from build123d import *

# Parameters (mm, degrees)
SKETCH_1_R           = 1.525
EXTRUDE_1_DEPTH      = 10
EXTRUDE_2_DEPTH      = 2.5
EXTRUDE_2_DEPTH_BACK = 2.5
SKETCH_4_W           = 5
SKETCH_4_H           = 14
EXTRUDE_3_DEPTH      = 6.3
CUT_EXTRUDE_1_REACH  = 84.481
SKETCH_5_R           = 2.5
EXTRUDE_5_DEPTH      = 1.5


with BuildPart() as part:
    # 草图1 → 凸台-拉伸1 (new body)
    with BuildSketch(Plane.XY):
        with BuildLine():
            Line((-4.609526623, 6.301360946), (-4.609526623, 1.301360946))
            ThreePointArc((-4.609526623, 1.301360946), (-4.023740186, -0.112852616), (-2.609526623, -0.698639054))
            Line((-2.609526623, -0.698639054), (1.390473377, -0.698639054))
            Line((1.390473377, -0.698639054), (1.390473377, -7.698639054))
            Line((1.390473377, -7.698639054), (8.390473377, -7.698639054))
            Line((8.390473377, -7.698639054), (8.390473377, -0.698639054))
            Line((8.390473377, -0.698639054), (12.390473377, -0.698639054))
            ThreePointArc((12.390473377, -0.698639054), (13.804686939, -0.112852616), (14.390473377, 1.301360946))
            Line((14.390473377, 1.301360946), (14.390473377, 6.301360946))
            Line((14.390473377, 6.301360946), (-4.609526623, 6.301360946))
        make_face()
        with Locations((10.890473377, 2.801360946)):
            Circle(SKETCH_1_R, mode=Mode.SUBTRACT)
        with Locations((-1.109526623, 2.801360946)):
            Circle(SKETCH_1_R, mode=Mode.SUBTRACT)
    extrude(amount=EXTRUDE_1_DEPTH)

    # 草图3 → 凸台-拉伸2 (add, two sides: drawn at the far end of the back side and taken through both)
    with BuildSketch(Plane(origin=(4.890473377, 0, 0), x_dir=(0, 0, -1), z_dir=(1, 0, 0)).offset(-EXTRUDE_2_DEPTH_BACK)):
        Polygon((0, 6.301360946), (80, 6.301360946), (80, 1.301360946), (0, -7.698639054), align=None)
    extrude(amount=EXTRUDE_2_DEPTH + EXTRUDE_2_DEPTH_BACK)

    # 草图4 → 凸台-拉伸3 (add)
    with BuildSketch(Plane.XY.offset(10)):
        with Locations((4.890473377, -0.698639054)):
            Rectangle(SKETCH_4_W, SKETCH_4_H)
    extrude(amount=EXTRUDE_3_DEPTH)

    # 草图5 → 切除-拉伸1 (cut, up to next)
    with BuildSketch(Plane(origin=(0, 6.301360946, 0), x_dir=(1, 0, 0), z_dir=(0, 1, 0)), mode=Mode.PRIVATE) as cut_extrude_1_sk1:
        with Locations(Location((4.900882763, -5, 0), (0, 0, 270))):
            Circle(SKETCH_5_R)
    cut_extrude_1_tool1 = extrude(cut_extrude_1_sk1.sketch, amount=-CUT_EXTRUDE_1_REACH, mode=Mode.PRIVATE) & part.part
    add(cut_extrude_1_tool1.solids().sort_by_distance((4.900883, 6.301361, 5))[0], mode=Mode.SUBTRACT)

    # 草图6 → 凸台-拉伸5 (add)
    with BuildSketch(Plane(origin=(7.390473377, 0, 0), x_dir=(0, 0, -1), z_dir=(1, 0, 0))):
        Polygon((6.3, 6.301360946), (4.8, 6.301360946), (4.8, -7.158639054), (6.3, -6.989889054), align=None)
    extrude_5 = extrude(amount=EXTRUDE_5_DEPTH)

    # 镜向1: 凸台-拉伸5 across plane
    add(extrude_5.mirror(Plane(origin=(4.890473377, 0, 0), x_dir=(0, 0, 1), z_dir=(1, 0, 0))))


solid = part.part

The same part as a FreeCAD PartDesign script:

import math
import FreeCAD as App
import Part
import Sketcher

V = App.Vector


def add_polygon(sketch, points):
    """Adds a closed chain of lines whose ends are joined by coincident constraints."""
    first, n = sketch.GeometryCount, len(points)
    for a, b in zip(points, points[1:] + points[:1]):
        sketch.addGeometry(Part.LineSegment(App.Vector(*a, 0), App.Vector(*b, 0)), False)
    for i in range(n):
        sketch.addConstraint(Sketcher.Constraint("Coincident", first + i, 2, first + (i + 1) % n, 1))

doc = App.newDocument("Part")
body = doc.addObject("PartDesign::Body", "Body")

sketch1 = body.newObject("Sketcher::SketchObject", "Sketch")
sketch1.AttachmentSupport = (doc.getObject("XY_Plane"), [""])
sketch1.MapMode = "FlatFace"
sketch1.addGeometry(Part.LineSegment(V(-4.6, 6.3, 0), V(-4.6, 1.3, 0)), False)
sketch1.addGeometry(Part.ArcOfCircle(Part.Circle(V(-2.6, 1.3, 0), V(0, 0, 1), 2), math.radians(180), math.radians(270)), False)
sketch1.addGeometry(Part.LineSegment(V(-2.6, -0.7, 0), V(1.4, -0.7, 0)), False)
sketch1.addGeometry(Part.LineSegment(V(1.4, -0.7, 0), V(1.4, -7.7, 0)), False)
sketch1.addGeometry(Part.LineSegment(V(1.4, -7.7, 0), V(8.4, -7.7, 0)), False)
sketch1.addGeometry(Part.LineSegment(V(8.4, -7.7, 0), V(8.4, -0.7, 0)), False)
sketch1.addGeometry(Part.LineSegment(V(8.4, -0.7, 0), V(12.4, -0.7, 0)), False)
sketch1.addGeometry(Part.ArcOfCircle(Part.Circle(V(12.4, 1.3, 0), V(0, 0, 1), 2), math.radians(-90), math.radians(0)), False)
sketch1.addGeometry(Part.LineSegment(V(14.4, 1.3, 0), V(14.4, 6.3, 0)), False)
sketch1.addGeometry(Part.LineSegment(V(14.4, 6.3, 0), V(-4.6, 6.3, 0)), False)
sketch1.addGeometry(Part.Circle(V(-1.1, 2.8, 0), V(0, 0, 1), 1.5), False)
sketch1.addGeometry(Part.Circle(V(10.9, 2.8, 0), V(0, 0, 1), 1.5), False)
sketch1.addConstraint(Sketcher.Constraint("Tangent", 0, 2, 1, 1))
sketch1.addConstraint(Sketcher.Constraint("Tangent", 1, 2, 2, 1))
sketch1.addConstraint(Sketcher.Constraint("Coincident", 2, 2, 3, 1))
sketch1.addConstraint(Sketcher.Constraint("Coincident", 3, 2, 4, 1))
sketch1.addConstraint(Sketcher.Constraint("Coincident", 4, 2, 5, 1))
sketch1.addConstraint(Sketcher.Constraint("Coincident", 5, 2, 6, 1))
sketch1.addConstraint(Sketcher.Constraint("Tangent", 6, 2, 7, 1))
sketch1.addConstraint(Sketcher.Constraint("Tangent", 7, 2, 8, 1))
sketch1.addConstraint(Sketcher.Constraint("Coincident", 8, 2, 9, 1))
sketch1.addConstraint(Sketcher.Constraint("Coincident", 9, 2, 0, 1))
sketch1.addConstraint(Sketcher.Constraint("Vertical", 0))
sketch1.addConstraint(Sketcher.Constraint("Horizontal", 2))
sketch1.addConstraint(Sketcher.Constraint("Vertical", 3))
sketch1.addConstraint(Sketcher.Constraint("Horizontal", 4))
sketch1.addConstraint(Sketcher.Constraint("Vertical", 5))
sketch1.addConstraint(Sketcher.Constraint("Horizontal", 6))
sketch1.addConstraint(Sketcher.Constraint("Vertical", 8))
sketch1.addConstraint(Sketcher.Constraint("Horizontal", 9))
sketch1.addConstraint(Sketcher.Constraint("Equal", 1, 7))
sketch1.addConstraint(Sketcher.Constraint("Equal", 10, 11))
sketch1.addConstraint(Sketcher.Constraint("Horizontal", 1, 3, 7, 3))
sketch1.addConstraint(Sketcher.Constraint("Horizontal", 10, 3, 11, 3))
sketch1.addConstraint(Sketcher.Constraint("Equal", 2, 6))
sketch1.addConstraint(Sketcher.Constraint("Equal", 4, 3))
sketch1.addConstraint(Sketcher.Constraint("Radius", 1, 2.0))
sketch1.addConstraint(Sketcher.Constraint("Diameter", 10, 3.05))
sketch1.addConstraint(Sketcher.Constraint("DistanceX", 2, 1, 2, 2, 4.0))
sketch1.addConstraint(Sketcher.Constraint("DistanceX", 4, 1, 4, 2, 7.0))
sketch1.addConstraint(Sketcher.Constraint("DistanceY", 0, 2, 0, 1, 5.0))
sketch1.addConstraint(Sketcher.Constraint("DistanceX", 10, 3, 11, 3, 12.0))
sketch1.addConstraint(Sketcher.Constraint("DistanceX", 1, 3, 10, 3, 1.5))
sketch1.addConstraint(Sketcher.Constraint("DistanceY", 1, 3, 10, 3, 1.5))
sketch1.addConstraint(Sketcher.Constraint("DistanceY", -1, 1, 1, 3, 1.301361))
sketch1.addConstraint(Sketcher.Constraint("DistanceX", 1, 3, -1, 1, 2.609527))
pad1 = body.newObject("PartDesign::Pad", "Pad")
pad1.Profile = sketch1
pad1.Length = 10

sketch2 = body.newObject("Sketcher::SketchObject", "Sketch001")
sketch2.AttachmentSupport = (doc.getObject("YZ_Plane"), [""])
sketch2.MapMode = "FlatFace"
sketch2.AttachmentOffset = App.Placement(V(0, 0, 4.890473), App.Rotation())
add_polygon(sketch2, [(6, -80), (6, 0), (-8, 0), (1, -80)])
sketch2.addConstraint(Sketcher.Constraint("Vertical", 0))
sketch2.addConstraint(Sketcher.Constraint("Horizontal", 1))
sketch2.addConstraint(Sketcher.Constraint("Horizontal", 3))
sketch2.addConstraint(Sketcher.Constraint("PointOnObject", 0, 2, -1))
sketch2.addConstraint(Sketcher.Constraint("DistanceX", 1, 2, 1, 1, 14.0))
sketch2.addConstraint(Sketcher.Constraint("DistanceX", 3, 1, 3, 2, 5.0))
sketch2.addConstraint(Sketcher.Constraint("DistanceY", 0, 1, 0, 2, 80.0))
sketch2.addConstraint(Sketcher.Constraint("DistanceX", -1, 1, 0, 2, 6.301361))
pad2 = body.newObject("PartDesign::Pad", "Pad001")
pad2.Profile = sketch2
pad2.Type = "TwoLengths"
pad2.Length = 2.5
pad2.Length2 = 2.5

sketch3 = body.newObject("Sketcher::SketchObject", "Sketch002")
sketch3.AttachmentSupport = (doc.getObject("XY_Plane"), [""])
sketch3.MapMode = "FlatFace"
sketch3.AttachmentOffset = App.Placement(V(0, 0, 10), App.Rotation())
add_polygon(sketch3, [(2, 6), (2, -8), (7, -8), (7, 6)])
sketch3.addConstraint(Sketcher.Constraint("Vertical", 0))
sketch3.addConstraint(Sketcher.Constraint("Horizontal", 1))
sketch3.addConstraint(Sketcher.Constraint("Vertical", 2))
sketch3.addConstraint(Sketcher.Constraint("Horizontal", 3))
sketch3.addConstraint(Sketcher.Constraint("DistanceX", 1, 1, 1, 2, 5.0))
sketch3.addConstraint(Sketcher.Constraint("DistanceY", 0, 2, 0, 1, 14.0))
sketch3.addConstraint(Sketcher.Constraint("DistanceY", 0, 2, -1, 1, 7.698639))
sketch3.addConstraint(Sketcher.Constraint("DistanceX", -1, 1, 0, 2, 2.390473))
pad3 = body.newObject("PartDesign::Pad", "Pad002")
pad3.Profile = sketch3
pad3.Length = 6.3

sketch4 = body.newObject("Sketcher::SketchObject", "Sketch003")
sketch4.AttachmentSupport = (doc.getObject("XZ_Plane"), [""])
sketch4.MapMode = "FlatFace"
sketch4.AttachmentOffset = App.Placement(V(0, 0, -6.301361), App.Rotation())
sketch4.addGeometry(Part.Circle(V(4.9, 5, 0), V(0, 0, 1), 2.5), False)
sketch4.addConstraint(Sketcher.Constraint("Diameter", 0, 5.0))
sketch4.addConstraint(Sketcher.Constraint("DistanceY", -1, 1, 0, 3, 5.0))
sketch4.addConstraint(Sketcher.Constraint("DistanceX", -1, 1, 0, 3, 4.900883))
pocket1 = body.newObject("PartDesign::Pocket", "Pocket")
pocket1.Profile = sketch4
pocket1.Type = "UpToFirst"
pocket1.Reversed = True

sketch5 = body.newObject("Sketcher::SketchObject", "Sketch004")
sketch5.AttachmentSupport = (doc.getObject("YZ_Plane"), [""])
sketch5.MapMode = "FlatFace"
sketch5.AttachmentOffset = App.Placement(V(0, 0, 7.390473), App.Rotation())
add_polygon(sketch5, [(6.3, -6.3), (6.3, -4.8), (-7.2, -4.8), (-7, -6.3)])
sketch5.addConstraint(Sketcher.Constraint("Vertical", 0))
sketch5.addConstraint(Sketcher.Constraint("Horizontal", 1))
sketch5.addConstraint(Sketcher.Constraint("Horizontal", 3))
sketch5.addConstraint(Sketcher.Constraint("DistanceY", 0, 1, 0, 2, 1.5))
sketch5.addConstraint(Sketcher.Constraint("DistanceX", 1, 2, 1, 1, 13.46))
sketch5.addConstraint(Sketcher.Constraint("DistanceY", 0, 2, -1, 1, 4.8))
sketch5.addConstraint(Sketcher.Constraint("DistanceX", 3, 1, 3, 2, 13.29125))
sketch5.addConstraint(Sketcher.Constraint("DistanceX", -1, 1, 0, 2, 6.301361))
pad4 = body.newObject("PartDesign::Pad", "Pad003")
pad4.Profile = sketch5
pad4.Length = 1.5
doc.recompute()

datumplane = body.newObject("PartDesign::Plane", "DatumPlane")
datumplane.AttachmentSupport = (doc.getObject("YZ_Plane"), [""])
datumplane.MapMode = "FlatFace"
datumplane.AttachmentOffset = App.Placement(V(0, 0, 4.890473), App.Rotation())
mirrored = body.newObject("PartDesign::Mirrored", "Mirrored")
mirrored.Originals = [pad4]
mirrored.MirrorPlane = (datumplane, [""])
body.Tip = mirrored

doc.recompute()
